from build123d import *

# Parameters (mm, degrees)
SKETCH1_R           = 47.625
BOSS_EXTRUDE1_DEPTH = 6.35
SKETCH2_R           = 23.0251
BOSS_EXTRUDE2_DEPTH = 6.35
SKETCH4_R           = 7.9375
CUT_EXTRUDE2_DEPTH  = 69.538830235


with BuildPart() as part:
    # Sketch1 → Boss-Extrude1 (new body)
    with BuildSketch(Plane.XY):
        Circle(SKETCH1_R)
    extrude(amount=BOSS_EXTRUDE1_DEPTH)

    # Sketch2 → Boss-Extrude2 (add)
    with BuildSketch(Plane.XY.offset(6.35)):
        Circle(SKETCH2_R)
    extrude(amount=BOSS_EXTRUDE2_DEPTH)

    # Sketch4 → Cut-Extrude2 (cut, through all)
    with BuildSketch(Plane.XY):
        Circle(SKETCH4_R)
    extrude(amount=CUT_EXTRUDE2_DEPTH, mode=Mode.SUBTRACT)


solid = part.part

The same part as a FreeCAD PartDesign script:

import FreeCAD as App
import Part
import Sketcher
from FreeCAD import Vector
Q = App.Units.Quantity

doc = App.newDocument("Part")
body = doc.addObject("PartDesign::Body", "Body")

# Sketch on XY plane
sketch1 = body.newObject("Sketcher::SketchObject", "Sketch")
sketch1.AttachmentSupport = (doc.getObject("XY_Plane"), [""])
sketch1.MapMode = "FlatFace"
sketch1.addGeometry(Part.Circle(Vector(0, 0, 0), Vector(0, 0, 1), 48), False)
sketch1.addConstraint([
    Sketcher.Constraint("Coincident", 0, 3, -1, 1),
    Sketcher.Constraint("Diameter", 0, Q("3.75 in")),
])
pad1 = body.newObject("PartDesign::Pad", "Pad")
pad1.Profile = sketch1
pad1.Length = Q("0.25 in")

# Sketch on XY plane
sketch2 = body.newObject("Sketcher::SketchObject", "Sketch001")
sketch2.AttachmentSupport = (doc.getObject("XY_Plane"), [""])
sketch2.MapMode = "FlatFace"
sketch2.AttachmentOffset = App.Placement(Vector(0, 0, 0.25 * 25.4), App.Rotation())
sketch2.addGeometry(Part.Circle(Vector(0, 0, 0), Vector(0, 0, 1), 23), False)
sketch2.addConstraint([
    Sketcher.Constraint("Coincident", 0, 3, -1, 1),
    Sketcher.Constraint("Diameter", 0, Q("1.813 in")),
])
pad2 = body.newObject("PartDesign::Pad", "Pad001")
pad2.Profile = sketch2
pad2.Length = Q("0.25 in")

# Sketch on XY plane
sketch3 = body.newObject("Sketcher::SketchObject", "Sketch002")
sketch3.AttachmentSupport = (doc.getObject("XY_Plane"), [""])
sketch3.MapMode = "FlatFace"
sketch3.addGeometry(Part.Circle(Vector(0, 0, 0), Vector(0, 0, 1), 8), False)
sketch3.addConstraint([
    Sketcher.Constraint("Coincident", 0, 3, -1, 1),
    Sketcher.Constraint("Diameter", 0, Q("0.625 in")),
])
pocket1 = body.newObject("PartDesign::Pocket", "Pocket")
pocket1.Profile = sketch3
pocket1.Type = "ThroughAll"
pocket1.Reversed = True

doc.recompute()
